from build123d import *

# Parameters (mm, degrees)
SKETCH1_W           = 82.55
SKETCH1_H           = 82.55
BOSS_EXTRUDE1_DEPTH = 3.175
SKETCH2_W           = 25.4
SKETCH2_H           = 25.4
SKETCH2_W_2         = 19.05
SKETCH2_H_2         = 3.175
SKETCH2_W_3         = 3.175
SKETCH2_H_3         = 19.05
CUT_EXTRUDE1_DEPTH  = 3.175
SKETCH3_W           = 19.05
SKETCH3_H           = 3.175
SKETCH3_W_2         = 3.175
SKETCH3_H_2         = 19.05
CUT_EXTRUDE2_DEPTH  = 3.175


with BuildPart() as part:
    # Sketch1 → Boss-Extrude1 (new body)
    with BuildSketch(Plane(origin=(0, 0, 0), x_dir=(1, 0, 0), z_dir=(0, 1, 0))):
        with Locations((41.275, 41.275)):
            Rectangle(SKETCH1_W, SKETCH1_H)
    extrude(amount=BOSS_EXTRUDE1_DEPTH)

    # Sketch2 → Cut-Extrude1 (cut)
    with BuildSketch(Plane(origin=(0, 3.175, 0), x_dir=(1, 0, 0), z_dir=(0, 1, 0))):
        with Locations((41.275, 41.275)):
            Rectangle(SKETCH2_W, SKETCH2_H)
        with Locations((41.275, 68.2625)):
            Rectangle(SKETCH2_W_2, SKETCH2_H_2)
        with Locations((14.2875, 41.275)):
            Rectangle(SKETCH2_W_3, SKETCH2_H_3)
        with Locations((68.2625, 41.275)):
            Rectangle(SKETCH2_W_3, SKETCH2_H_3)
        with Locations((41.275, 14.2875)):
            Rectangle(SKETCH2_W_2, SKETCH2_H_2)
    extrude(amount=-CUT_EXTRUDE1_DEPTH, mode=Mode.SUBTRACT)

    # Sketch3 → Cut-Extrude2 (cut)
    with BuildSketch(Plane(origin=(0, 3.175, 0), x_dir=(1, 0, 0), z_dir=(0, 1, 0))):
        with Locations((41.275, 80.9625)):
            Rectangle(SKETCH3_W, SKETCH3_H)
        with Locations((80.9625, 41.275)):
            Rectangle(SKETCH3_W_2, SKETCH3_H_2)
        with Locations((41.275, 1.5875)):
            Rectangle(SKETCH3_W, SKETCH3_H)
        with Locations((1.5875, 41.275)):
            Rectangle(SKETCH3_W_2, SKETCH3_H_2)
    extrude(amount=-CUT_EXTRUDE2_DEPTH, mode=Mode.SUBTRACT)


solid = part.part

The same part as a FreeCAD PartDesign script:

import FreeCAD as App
import Part
import Sketcher
Q = App.Units.Quantity

doc = App.newDocument("Part")
body = doc.addObject("PartDesign::Body", "Body")

sketch1 = body.newObject("Sketcher::SketchObject", "Sketch")
sketch1.AttachmentSupport = (doc.getObject("XZ_Plane"), [""])
sketch1.MapMode = "FlatFace"
sketch1.addGeometry([
    Part.LineSegment(App.Vector(0, -83, 0), App.Vector(0, 0, 0)),
    Part.LineSegment(App.Vector(0, 0, 0), App.Vector(83, 0, 0)),
    Part.LineSegment(App.Vector(83, 0, 0), App.Vector(83, -83, 0)),
    Part.LineSegment(App.Vector(83, -83, 0), App.Vector(0, -83, 0)),
], False)
sketch1.addConstraint([
    Sketcher.Constraint("Coincident", 0, 2, 1, 1),
    Sketcher.Constraint("Coincident", 1, 2, 2, 1),
    Sketcher.Constraint("Coincident", 2, 2, 3, 1),
    Sketcher.Constraint("Coincident", 3, 2, 0, 1),
    Sketcher.Constraint("Vertical", 0),
    Sketcher.Constraint("Horizontal", 1),
    Sketcher.Constraint("Vertical", 2),
    Sketcher.Constraint("Horizontal", 3),
    Sketcher.Constraint("Coincident", 0, 2, -1, 1),
    Sketcher.Constraint("Equal", 3, 0),
    Sketcher.Constraint("DistanceX", 1, 1, 1, 2, Q("3.25 in")),
])
pad1 = body.newObject("PartDesign::Pad", "Pad")
pad1.Profile = sketch1
pad1.Length = Q("0.125 in")
pad1.Reversed = True

sketch2 = body.newObject("Sketcher::SketchObject", "Sketch001")
sketch2.AttachmentSupport = (doc.getObject("XZ_Plane"), [""])
sketch2.MapMode = "FlatFace"
sketch2.AttachmentOffset = App.Placement(App.Vector(0, 0, -0.125 * 25.4), App.Rotation())
sketch2.addGeometry([
    Part.LineSegment(App.Vector(28.6, -54, 0), App.Vector(28.6, -28.6, 0)),
    Part.LineSegment(App.Vector(28.6, -28.6, 0), App.Vector(54, -28.6, 0)),
    Part.LineSegment(App.Vector(54, -28.6, 0), App.Vector(54, -54, 0)),
    Part.LineSegment(App.Vector(54, -54, 0), App.Vector(28.6, -54, 0)),
    Part.LineSegment(App.Vector(31.8, -69.8, 0), App.Vector(31.8, -66.7, 0)),
    Part.LineSegment(App.Vector(31.8, -66.7, 0), App.Vector(50.8, -66.7, 0)),
    Part.LineSegment(App.Vector(50.8, -66.7, 0), App.Vector(50.8, -69.8, 0)),
    Part.LineSegment(App.Vector(50.8, -69.8, 0), App.Vector(31.8, -69.8, 0)),
    Part.LineSegment(App.Vector(12.7, -50.8, 0), App.Vector(12.7, -31.8, 0)),
    Part.LineSegment(App.Vector(12.7, -31.8, 0), App.Vector(15.9, -31.8, 0)),
    Part.LineSegment(App.Vector(15.9, -31.8, 0), App.Vector(15.9, -50.8, 0)),
    Part.LineSegment(App.Vector(15.9, -50.8, 0), App.Vector(12.7, -50.8, 0)),
    Part.LineSegment(App.Vector(66.7, -50.8, 0), App.Vector(66.7, -31.8, 0)),
    Part.LineSegment(App.Vector(66.7, -31.8, 0), App.Vector(69.8, -31.8, 0)),
    Part.LineSegment(App.Vector(69.8, -31.8, 0), App.Vector(69.8, -50.8, 0)),
    Part.LineSegment(App.Vector(69.8, -50.8, 0), App.Vector(66.7, -50.8, 0)),
    Part.LineSegment(App.Vector(31.8, -15.9, 0), App.Vector(31.8, -12.7, 0)),
    Part.LineSegment(App.Vector(31.8, -12.7, 0), App.Vector(50.8, -12.7, 0)),
    Part.LineSegment(App.Vector(50.8, -12.7, 0), App.Vector(50.8, -15.9, 0)),
    Part.LineSegment(App.Vector(50.8, -15.9, 0), App.Vector(31.8, -15.9, 0)),
], False)
sketch2.addConstraint([
    Sketcher.Constraint("Coincident", 0, 2, 1, 1),
    Sketcher.Constraint("Coincident", 1, 2, 2, 1),
    Sketcher.Constraint("Coincident", 2, 2, 3, 1),
    Sketcher.Constraint("Coincident", 3, 2, 0, 1),
    Sketcher.Constraint("Coincident", 4, 2, 5, 1),
    Sketcher.Constraint("Coincident", 5, 2, 6, 1),
    Sketcher.Constraint("Coincident", 6, 2, 7, 1),
    Sketcher.Constraint("Coincident", 7, 2, 4, 1),
    Sketcher.Constraint("Coincident", 8, 2, 9, 1),
    Sketcher.Constraint("Coincident", 9, 2, 10, 1),
    Sketcher.Constraint("Coincident", 10, 2, 11, 1),
    Sketcher.Constraint("Coincident", 11, 2, 8, 1),
    Sketcher.Constraint("Coincident", 12, 2, 13, 1),
    Sketcher.Constraint("Coincident", 13, 2, 14, 1),
    Sketcher.Constraint("Coincident", 14, 2, 15, 1),
    Sketcher.Constraint("Coincident", 15, 2, 12, 1),
    Sketcher.Constraint("Coincident", 16, 2, 17, 1),
    Sketcher.Constraint("Coincident", 17, 2, 18, 1),
    Sketcher.Constraint("Coincident", 18, 2, 19, 1),
    Sketcher.Constraint("Coincident", 19, 2, 16, 1),
    Sketcher.Constraint("Vertical", 0),
    Sketcher.Constraint("Horizontal", 1),
    Sketcher.Constraint("Vertical", 2),
    Sketcher.Constraint("Horizontal", 3),
    Sketcher.Constraint("Vertical", 4),
    Sketcher.Constraint("Horizontal", 5),
    Sketcher.Constraint("Vertical", 6),
    Sketcher.Constraint("Horizontal", 7),
    Sketcher.Constraint("Vertical", 8),
    Sketcher.Constraint("Horizontal", 9),
    Sketcher.Constraint("Vertical", 10),
    Sketcher.Constraint("Horizontal", 11),
    Sketcher.Constraint("Vertical", 12),
    Sketcher.Constraint("Horizontal", 13),
    Sketcher.Constraint("Vertical", 14),
    Sketcher.Constraint("Horizontal", 15),
    Sketcher.Constraint("Vertical", 16),
    Sketcher.Constraint("Horizontal", 17),
    Sketcher.Constraint("Vertical", 18),
    Sketcher.Constraint("Horizontal", 19),
    Sketcher.Constraint("Horizontal", 9, 2, 12, 2),
    Sketcher.Constraint("Horizontal", 11, 2, 14, 2),
    Sketcher.Constraint("Vertical", 7, 2, 16, 2),
    Sketcher.Constraint("Vertical", 6, 2, 17, 2),
    Sketcher.Constraint("Equal", 11, 13),
    Sketcher.Constraint("Equal", 3, 0),
    Sketcher.Constraint("Equal", 15, 4),
    Sketcher.Constraint("Equal", 19, 8),
    Sketcher.Constraint("Equal", 6, 16),
    Sketcher.Constraint("DistanceX", 1, 1, 1, 2, Q("1 in")),
    Sketcher.Constraint("DistanceX", -1, 1, 5, 2, Q("2 in")),
    Sketcher.Constraint("DistanceY", 10, 2, -1, 1, Q("2 in")),
    Sketcher.Constraint("DistanceX", 5, 1, 5, 2, Q("0.75 in")),
    Sketcher.Constraint("DistanceX", -1, 1, 8, 2, Q("0.5 in")),
    Sketcher.Constraint("DistanceY", 16, 2, -1, 1, Q("0.5 in")),
    Sketcher.Constraint("DistanceY", 4, 2, 3, 2, Q("0.5 in")),
    Sketcher.Constraint("DistanceY", 7, 2, 8, 2, Q("1.5 in")),
    Sketcher.Constraint("DistanceX", 9, 2, 0, 2, Q("0.5 in")),
    Sketcher.Constraint("DistanceX", 1, 2, 12, 2, Q("0.5 in")),
    Sketcher.Constraint("DistanceY", 1, 2, 18, 2, Q("0.5 in")),
])
pocket1 = body.newObject("PartDesign::Pocket", "Pocket")
pocket1.Profile = sketch2
pocket1.Length = Q("0.125 in")
pocket1.Reversed = True

sketch3 = body.newObject("Sketcher::SketchObject", "Sketch002")
sketch3.AttachmentSupport = (doc.getObject("XZ_Plane"), [""])
sketch3.MapMode = "FlatFace"
sketch3.AttachmentOffset = App.Placement(App.Vector(0, 0, -0.125 * 25.4), App.Rotation())
sketch3.addGeometry([
    Part.LineSegment(App.Vector(31.8, -82.5, 0), App.Vector(31.8, -79.4, 0)),
    Part.LineSegment(App.Vector(31.8, -79.4, 0), App.Vector(50.8, -79.4, 0)),
    Part.LineSegment(App.Vector(50.8, -79.4, 0), App.Vector(50.8, -82.5, 0)),
    Part.LineSegment(App.Vector(50.8, -82.5, 0), App.Vector(31.8, -82.5, 0)),
    Part.LineSegment(App.Vector(79.4, -50.8, 0), App.Vector(79.4, -31.8, 0)),
    Part.LineSegment(App.Vector(79.4, -31.8, 0), App.Vector(82.5, -31.8, 0)),
    Part.LineSegment(App.Vector(82.5, -31.8, 0), App.Vector(82.5, -50.8, 0)),
    Part.LineSegment(App.Vector(82.5, -50.8, 0), App.Vector(79.4, -50.8, 0)),
    Part.LineSegment(App.Vector(31.8, -3.2, 0), App.Vector(31.8, 0, 0)),
    Part.LineSegment(App.Vector(31.8, 0, 0), App.Vector(50.8, 0, 0)),
    Part.LineSegment(App.Vector(50.8, 0, 0), App.Vector(50.8, -3.2, 0)),
    Part.LineSegment(App.Vector(50.8, -3.2, 0), App.Vector(31.8, -3.2, 0)),
    Part.LineSegment(App.Vector(0, -50.8, 0), App.Vector(0, -31.8, 0)),
    Part.LineSegment(App.Vector(0, -31.8, 0), App.Vector(3.2, -31.8, 0)),
    Part.LineSegment(App.Vector(3.2, -31.8, 0), App.Vector(3.2, -50.8, 0)),
    Part.LineSegment(App.Vector(3.2, -50.8, 0), App.Vector(0, -50.8, 0)),
], False)
sketch3.addConstraint([
    Sketcher.Constraint("Coincident", 0, 2, 1, 1),
    Sketcher.Constraint("Coincident", 1, 2, 2, 1),
    Sketcher.Constraint("Coincident", 2, 2, 3, 1),
    Sketcher.Constraint("Coincident", 3, 2, 0, 1),
    Sketcher.Constraint("Coincident", 4, 2, 5, 1),
    Sketcher.Constraint("Coincident", 5, 2, 6, 1),
    Sketcher.Constraint("Coincident", 6, 2, 7, 1),
    Sketcher.Constraint("Coincident", 7, 2, 4, 1),
    Sketcher.Constraint("Coincident", 8, 2, 9, 1),
    Sketcher.Constraint("Coincident", 9, 2, 10, 1),
    Sketcher.Constraint("Coincident", 10, 2, 11, 1),
    Sketcher.Constraint("Coincident", 11, 2, 8, 1),
    Sketcher.Constraint("Coincident", 12, 2, 13, 1),
    Sketcher.Constraint("Coincident", 13, 2, 14, 1),
    Sketcher.Constraint("Coincident", 14, 2, 15, 1),
    Sketcher.Constraint("Coincident", 15, 2, 12, 1),
    Sketcher.Constraint("Vertical", 0),
    Sketcher.Constraint("Horizontal", 1),
    Sketcher.Constraint("Vertical", 2),
    Sketcher.Constraint("Horizontal", 3),
    Sketcher.Constraint("Vertical", 4),
    Sketcher.Constraint("Horizontal", 5),
    Sketcher.Constraint("Vertical", 6),
    Sketcher.Constraint("Horizontal", 7),
    Sketcher.Constraint("Vertical", 8),
    Sketcher.Constraint("Horizontal", 9),
    Sketcher.Constraint("Vertical", 10),
    Sketcher.Constraint("Horizontal", 11),
    Sketcher.Constraint("Vertical", 12),
    Sketcher.Constraint("Horizontal", 13),
    Sketcher.Constraint("Vertical", 14),
    Sketcher.Constraint("Horizontal", 15),
    Sketcher.Constraint("PointOnObject", 8, 2, -1),
    Sketcher.Constraint("PointOnObject", 12, 2, -2),
    Sketcher.Constraint("Horizontal", 5, 2, 12, 2),
    Sketcher.Constraint("Horizontal", 7, 2, 14, 2),
    Sketcher.Constraint("Vertical", 3, 2, 8, 2),
    Sketcher.Constraint("Vertical", 2, 2, 9, 2),
    Sketcher.Constraint("Equal", 7, 13),
    Sketcher.Constraint("Equal", 15, 0),
    Sketcher.Constraint("Equal", 11, 4),
    Sketcher.Constraint("Equal", 2, 8),
    Sketcher.Constraint("DistanceX", -1, 1, 1, 2, Q("2 in")),
    Sketcher.Constraint("DistanceY", 6, 2, -1, 1, Q("2 in")),
    Sketcher.Constraint("DistanceY", 2, 2, 4, 2, Q("2 in")),
    Sketcher.Constraint("DistanceX", 0, 2, 5, 2, Q("2 in")),
    Sketcher.Constraint("DistanceX", 1, 1, 1, 2, Q("0.75 in")),
    Sketcher.Constraint("DistanceX", 5, 1, 5, 2, Q("0.125 in")),
])
pocket2 = body.newObject("PartDesign::Pocket", "Pocket001")
pocket2.Profile = sketch3
pocket2.Length = Q("0.125 in")
pocket2.Reversed = True

doc.recompute()
